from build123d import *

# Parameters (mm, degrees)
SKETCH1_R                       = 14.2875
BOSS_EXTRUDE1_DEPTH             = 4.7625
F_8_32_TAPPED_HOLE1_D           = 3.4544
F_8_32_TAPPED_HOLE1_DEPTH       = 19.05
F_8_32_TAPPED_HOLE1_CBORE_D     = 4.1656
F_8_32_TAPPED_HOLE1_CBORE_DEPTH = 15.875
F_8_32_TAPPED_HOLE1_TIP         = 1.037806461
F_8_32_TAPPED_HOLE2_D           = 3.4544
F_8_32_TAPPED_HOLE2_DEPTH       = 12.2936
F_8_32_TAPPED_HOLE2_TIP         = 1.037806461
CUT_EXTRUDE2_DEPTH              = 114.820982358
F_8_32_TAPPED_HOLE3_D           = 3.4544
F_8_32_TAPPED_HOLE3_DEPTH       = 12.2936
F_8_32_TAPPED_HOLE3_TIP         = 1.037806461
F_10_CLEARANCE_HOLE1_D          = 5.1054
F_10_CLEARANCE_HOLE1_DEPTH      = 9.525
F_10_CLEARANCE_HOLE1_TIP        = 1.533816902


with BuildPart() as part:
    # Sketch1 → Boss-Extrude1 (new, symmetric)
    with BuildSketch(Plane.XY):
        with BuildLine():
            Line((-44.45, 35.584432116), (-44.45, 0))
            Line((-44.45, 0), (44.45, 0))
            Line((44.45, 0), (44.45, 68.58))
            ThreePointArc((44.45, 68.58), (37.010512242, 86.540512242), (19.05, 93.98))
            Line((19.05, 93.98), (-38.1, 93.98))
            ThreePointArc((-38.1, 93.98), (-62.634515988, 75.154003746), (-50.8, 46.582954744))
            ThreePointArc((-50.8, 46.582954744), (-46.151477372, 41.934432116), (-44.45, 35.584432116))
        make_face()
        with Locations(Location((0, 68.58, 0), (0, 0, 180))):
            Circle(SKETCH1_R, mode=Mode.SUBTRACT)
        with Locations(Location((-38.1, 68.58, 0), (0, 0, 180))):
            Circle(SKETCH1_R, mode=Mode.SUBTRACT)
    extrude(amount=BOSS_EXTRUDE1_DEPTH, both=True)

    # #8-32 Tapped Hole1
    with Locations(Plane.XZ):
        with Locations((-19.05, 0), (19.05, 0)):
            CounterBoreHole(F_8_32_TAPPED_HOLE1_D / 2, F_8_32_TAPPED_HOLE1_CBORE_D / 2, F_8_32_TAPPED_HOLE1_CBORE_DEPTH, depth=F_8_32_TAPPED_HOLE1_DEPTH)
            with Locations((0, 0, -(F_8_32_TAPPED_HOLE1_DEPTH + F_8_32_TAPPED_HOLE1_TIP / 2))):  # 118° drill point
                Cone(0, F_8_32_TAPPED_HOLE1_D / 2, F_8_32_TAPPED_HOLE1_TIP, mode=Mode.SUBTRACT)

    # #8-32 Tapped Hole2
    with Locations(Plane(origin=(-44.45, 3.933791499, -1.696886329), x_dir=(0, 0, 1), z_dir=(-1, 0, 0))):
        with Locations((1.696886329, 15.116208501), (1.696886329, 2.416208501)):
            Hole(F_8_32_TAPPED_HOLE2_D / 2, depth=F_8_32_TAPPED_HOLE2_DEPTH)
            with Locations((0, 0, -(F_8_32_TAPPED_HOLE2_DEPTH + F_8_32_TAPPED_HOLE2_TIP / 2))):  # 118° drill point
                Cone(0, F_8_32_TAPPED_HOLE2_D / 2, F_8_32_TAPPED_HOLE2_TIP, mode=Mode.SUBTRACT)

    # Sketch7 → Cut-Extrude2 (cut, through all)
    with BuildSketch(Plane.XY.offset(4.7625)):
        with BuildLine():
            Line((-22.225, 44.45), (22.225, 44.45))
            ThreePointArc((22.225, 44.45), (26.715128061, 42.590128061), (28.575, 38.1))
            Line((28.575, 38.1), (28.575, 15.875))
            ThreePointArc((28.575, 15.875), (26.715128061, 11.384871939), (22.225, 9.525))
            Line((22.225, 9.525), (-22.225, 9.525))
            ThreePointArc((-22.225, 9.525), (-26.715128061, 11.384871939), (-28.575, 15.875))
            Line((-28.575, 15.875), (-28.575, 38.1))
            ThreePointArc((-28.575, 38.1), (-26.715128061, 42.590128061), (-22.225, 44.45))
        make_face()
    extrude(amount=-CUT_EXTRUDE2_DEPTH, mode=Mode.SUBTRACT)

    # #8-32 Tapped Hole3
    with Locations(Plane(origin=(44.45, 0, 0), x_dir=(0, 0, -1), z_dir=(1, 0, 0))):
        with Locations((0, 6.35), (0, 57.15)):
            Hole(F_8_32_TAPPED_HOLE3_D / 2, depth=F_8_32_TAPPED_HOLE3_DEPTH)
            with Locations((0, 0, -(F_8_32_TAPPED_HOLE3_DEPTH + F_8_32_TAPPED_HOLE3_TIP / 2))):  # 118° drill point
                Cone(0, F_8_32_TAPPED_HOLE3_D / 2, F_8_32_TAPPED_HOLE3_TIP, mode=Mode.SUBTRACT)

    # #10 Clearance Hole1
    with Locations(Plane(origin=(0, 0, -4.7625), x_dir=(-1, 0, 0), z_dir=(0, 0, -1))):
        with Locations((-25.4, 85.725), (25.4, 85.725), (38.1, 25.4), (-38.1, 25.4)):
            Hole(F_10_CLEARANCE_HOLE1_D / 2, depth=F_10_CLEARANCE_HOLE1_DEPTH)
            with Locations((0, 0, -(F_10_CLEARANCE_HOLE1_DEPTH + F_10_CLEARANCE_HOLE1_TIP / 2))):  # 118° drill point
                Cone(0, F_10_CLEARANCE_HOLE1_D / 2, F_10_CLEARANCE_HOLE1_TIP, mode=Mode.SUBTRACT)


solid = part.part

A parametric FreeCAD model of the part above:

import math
import FreeCAD as App
import Part
import Sketcher
from FreeCAD import Vector
Q = App.Units.Quantity

doc = App.newDocument("Part")
body = doc.addObject("PartDesign::Body", "Body")

# Sketch on XY plane
sketch1 = body.newObject("Sketcher::SketchObject", "Sketch")
sketch1.AttachmentSupport = (doc.getObject("XY_Plane"), [""])
sketch1.MapMode = "FlatFace"
sketch1.addGeometry([
    Part.LineSegment(Vector(-44, 36, 0), Vector(-44, 0, 0)),  # 0
    Part.LineSegment(Vector(-44, 0, 0), Vector(44, 0, 0)),  # 1
    Part.LineSegment(Vector(44, 0, 0), Vector(44, 69, 0)),  # 2
    Part.ArcOfCircle(Part.Circle(Vector(19, 69, 0), Vector(0, 0, 1), 25), math.radians(0), math.radians(90)),  # 3
    Part.LineSegment(Vector(19, 94, 0), Vector(-38, 94, 0)),  # 4
    Part.ArcOfCircle(Part.Circle(Vector(-38, 69, 0), Vector(0, 0, 1), 25), math.radians(90), math.radians(240)),  # 5
    Part.ArcOfCircle(Part.Circle(Vector(-57, 36, 0), Vector(0, 0, 1), 13), math.radians(0), math.radians(60)),  # 6
    Part.Circle(Vector(-38, 69, 0), Vector(0, 0, 1), 14),  # 7
    Part.Circle(Vector(0, 69, 0), Vector(0, 0, 1), 14),  # 8
], False)
sketch1.addConstraint([
    Sketcher.Constraint("Coincident", 0, 2, 1, 1),
    Sketcher.Constraint("Coincident", 1, 2, 2, 1),
    Sketcher.Constraint("Tangent", 2, 2, 3, 1),
    Sketcher.Constraint("Tangent", 3, 2, 4, 1),
    Sketcher.Constraint("Tangent", 4, 2, 5, 1),
    Sketcher.Constraint("Tangent", 5, 2, 6, 2),
    Sketcher.Constraint("Tangent", 6, 1, 0, 1),
    Sketcher.Constraint("Vertical", 0),
    Sketcher.Constraint("Horizontal", 1),
    Sketcher.Constraint("Vertical", 2),
    Sketcher.Constraint("Horizontal", 4),
    Sketcher.Constraint("Coincident", 7, 3, 5, 3),
    Sketcher.Constraint("Equal", 3, 5),
    Sketcher.Constraint("Equal", 7, 8),
    Sketcher.Constraint("Symmetric", 0, 2, 1, 2, -1, 1),
    Sketcher.Constraint("PointOnObject", 8, 3, -2),
    Sketcher.Constraint("Horizontal", 7, 3, 8, 3),
    Sketcher.Constraint("Radius", 3, Q("1 in")),
    Sketcher.Constraint("Radius", 6, Q("0.5 in")),
    Sketcher.Constraint("Diameter", 7, Q("1.125 in")),
    Sketcher.Constraint("DistanceX", 1, 1, 1, 2, Q("3.5 in")),
    Sketcher.Constraint("DistanceY", 2, 1, 2, 2, Q("2.7 in")),
    Sketcher.Constraint("DistanceX", 5, 2, -1, 1, Q("2 in")),
])
pad1 = body.newObject("PartDesign::Pad", "Pad")
pad1.Profile = sketch1
pad1.Length = Q("0.375 in")
pad1.Midplane = True

# Sketch on XZ plane
sketch2 = body.newObject("Sketcher::SketchObject", "Sketch001")
sketch2.AttachmentSupport = (doc.getObject("XZ_Plane"), [""])
sketch2.MapMode = "FlatFace"
sketch2.addGeometry([
    Part.Circle(Vector(-19.1, 0, 0), Vector(0, 0, 1), 1.7),
    Part.Circle(Vector(19.1, 0, 0), Vector(0, 0, 1), 1.7),
], False)
sketch2.addConstraint([
    Sketcher.Constraint("Equal", 0, 1),
    Sketcher.Constraint("Symmetric", 0, 3, 1, 3, -1, 1),
    Sketcher.Constraint("PointOnObject", 0, 3, -1),
    Sketcher.Constraint("Diameter", 0, Q("0.136 in")),
    Sketcher.Constraint("DistanceX", 0, 3, 1, 3, Q("1.5 in")),
])
doc.recompute()
hole = body.newObject("PartDesign::Hole", "Hole")
hole.Profile = sketch2
hole.ThreadType = "None"
hole.Diameter = Q("0.136 in")
hole.DepthType = "Dimension"
hole.Depth = Q("0.75 in")
hole.DrillPoint = "Angled"
hole.DrillPointAngle = 118
hole.HoleCutType = "Counterbore"
hole.HoleCutDiameter = Q("0.164 in")
hole.HoleCutDepth = Q("0.625 in")

# Sketch on YZ plane
sketch3 = body.newObject("Sketcher::SketchObject", "Sketch002")
sketch3.AttachmentSupport = (doc.getObject("YZ_Plane"), [""])
sketch3.MapMode = "FlatFace"
sketch3.AttachmentOffset = App.Placement(Vector(0, 0, -1.75 * 25.4), App.Rotation())
sketch3.addGeometry([
    Part.Circle(Vector(19.1, 0, 0), Vector(0, 0, 1), 1.7),
    Part.Circle(Vector(6.3, 0, 0), Vector(0, 0, 1), 1.7),
], False)
sketch3.addConstraint([
    Sketcher.Constraint("Equal", 0, 1),
    Sketcher.Constraint("PointOnObject", 0, 3, -1),
    Sketcher.Constraint("PointOnObject", 1, 3, -1),
    Sketcher.Constraint("Diameter", 0, Q("0.136 in")),
    Sketcher.Constraint("DistanceX", 1, 3, 0, 3, Q("0.5 in")),
    Sketcher.Constraint("DistanceX", -1, 1, 0, 3, Q("0.75 in")),
])
doc.recompute()
hole2 = body.newObject("PartDesign::Hole", "Hole001")
hole2.Profile = sketch3
hole2.ThreadType = "None"
hole2.Diameter = Q("0.136 in")
hole2.DepthType = "Dimension"
hole2.Depth = Q("0.484 in")
hole2.DrillPoint = "Angled"
hole2.DrillPointAngle = 118
hole2.Reversed = True

# Sketch on XY plane
sketch4 = body.newObject("Sketcher::SketchObject", "Sketch003")
sketch4.AttachmentSupport = (doc.getObject("XY_Plane"), [""])
sketch4.MapMode = "FlatFace"
sketch4.AttachmentOffset = App.Placement(Vector(0, 0, 0.1875 * 25.4), App.Rotation())
sketch4.addGeometry([
    Part.LineSegment(Vector(22, 44, 0), Vector(-22, 44, 0)),  # 0
    Part.ArcOfCircle(Part.Circle(Vector(-22, 38, 0), Vector(0, 0, 1), 6), math.radians(90), math.radians(180)),  # 1
    Part.LineSegment(Vector(-29, 38, 0), Vector(-29, 16, 0)),  # 2
    Part.ArcOfCircle(Part.Circle(Vector(-22, 16, 0), Vector(0, 0, 1), 6), math.radians(180), math.radians(270)),  # 3
    Part.LineSegment(Vector(-22, 10, 0), Vector(22, 10, 0)),  # 4
    Part.ArcOfCircle(Part.Circle(Vector(22, 16, 0), Vector(0, 0, 1), 6), math.radians(-90), math.radians(0)),  # 5
    Part.LineSegment(Vector(29, 16, 0), Vector(29, 38, 0)),  # 6
    Part.ArcOfCircle(Part.Circle(Vector(22, 38, 0), Vector(0, 0, 1), 6), math.radians(0), math.radians(90)),  # 7
], False)
sketch4.addConstraint([
    Sketcher.Constraint("Tangent", 0, 2, 1, 1),
    Sketcher.Constraint("Tangent", 1, 2, 2, 1),
    Sketcher.Constraint("Tangent", 2, 2, 3, 1),
    Sketcher.Constraint("Tangent", 3, 2, 4, 1),
    Sketcher.Constraint("Tangent", 4, 2, 5, 1),
    Sketcher.Constraint("Tangent", 5, 2, 6, 1),
    Sketcher.Constraint("Tangent", 6, 2, 7, 1),
    Sketcher.Constraint("Tangent", 7, 2, 0, 1),
    Sketcher.Constraint("Horizontal", 0),
    Sketcher.Constraint("Vertical", 2),
    Sketcher.Constraint("Horizontal", 4),
    Sketcher.Constraint("Vertical", 6),
    Sketcher.Constraint("Equal", 1, 3),
    Sketcher.Constraint("Equal", 3, 5),
    Sketcher.Constraint("Equal", 5, 7),
    Sketcher.Constraint("Radius", 1, Q("0.25 in")),
    Sketcher.Constraint("DistanceX", 1, 2, 7, 3, Q("2 in")),
    Sketcher.Constraint("DistanceY", -1, 1, 1, 3, Q("1.5 in")),
    Sketcher.Constraint("DistanceY", 2, 2, 2, 1, Q("0.875 in")),
    Sketcher.Constraint("DistanceX", 1, 3, -1, 1, Q("0.875 in")),
])
pocket1 = body.newObject("PartDesign::Pocket", "Pocket")
pocket1.Profile = sketch4
pocket1.Type = "ThroughAll"

# Sketch on YZ plane
sketch5 = body.newObject("Sketcher::SketchObject", "Sketch004")
sketch5.AttachmentSupport = (doc.getObject("YZ_Plane"), [""])
sketch5.MapMode = "FlatFace"
sketch5.AttachmentOffset = App.Placement(Vector(0, 0, 1.75 * 25.4), App.Rotation())
sketch5.addGeometry([
    Part.Circle(Vector(6.3, 0, 0), Vector(0, 0, 1), 1.7),
    Part.Circle(Vector(57.1, 0, 0), Vector(0, 0, 1), 1.7),
], False)
sketch5.addConstraint([
    Sketcher.Constraint("Equal", 0, 1),
    Sketcher.Constraint("PointOnObject", 0, 3, -1),
    Sketcher.Constraint("PointOnObject", 1, 3, -1),
    Sketcher.Constraint("Diameter", 0, Q("0.136 in")),
    Sketcher.Constraint("DistanceX", 0, 3, 1, 3, Q("2 in")),
    Sketcher.Constraint("DistanceX", -1, 1, 0, 3, Q("0.25 in")),
])
doc.recompute()
hole3 = body.newObject("PartDesign::Hole", "Hole002")
hole3.Profile = sketch5
hole3.ThreadType = "None"
hole3.Diameter = Q("0.136 in")
hole3.DepthType = "Dimension"
hole3.Depth = Q("0.484 in")
hole3.DrillPoint = "Angled"
hole3.DrillPointAngle = 118

# Sketch on XY plane
sketch6 = body.newObject("Sketcher::SketchObject", "Sketch005")
sketch6.AttachmentSupport = (doc.getObject("XY_Plane"), [""])
sketch6.MapMode = "FlatFace"
sketch6.AttachmentOffset = App.Placement(Vector(0, 0, -0.1875 * 25.4), App.Rotation())
sketch6.addGeometry([
    Part.Circle(Vector(25.4, 85.7, 0), Vector(0, 0, 1), 2.6),
    Part.Circle(Vector(-25.4, 85.7, 0), Vector(0, 0, 1), 2.6),
    Part.Circle(Vector(-38.1, 25.4, 0), Vector(0, 0, 1), 2.6),
    Part.Circle(Vector(38.1, 25.4, 0), Vector(0, 0, 1), 2.6),
], False)
sketch6.addConstraint([
    Sketcher.Constraint("Equal", 0, 1),
    Sketcher.Constraint("Equal", 1, 2),
    Sketcher.Constraint("Equal", 2, 3),
    Sketcher.Constraint("Symmetric", 0, 3, 1, 3, -2),
    Sketcher.Constraint("Symmetric", 2, 3, 3, 3, -2),
    Sketcher.Constraint("Diameter", 0, Q("0.201 in")),
    Sketcher.Constraint("DistanceX", -1, 1, 0, 3, Q("1 in")),
    Sketcher.Constraint("DistanceY", -1, 1, 2, 3, Q("1 in")),
    Sketcher.Constraint("DistanceX", 2, 3, 3, 3, Q("3 in")),
    Sketcher.Constraint("DistanceY", -1, 1, 0, 3, Q("3.375 in")),
])
doc.recompute()
hole4 = body.newObject("PartDesign::Hole", "Hole003")
hole4.Profile = sketch6
hole4.ThreadType = "None"
hole4.Diameter = Q("0.201 in")
hole4.DepthType = "Dimension"
hole4.Depth = Q("0.375 in")
hole4.DrillPoint = "Angled"
hole4.DrillPointAngle = 118
hole4.Reversed = True

doc.recompute()
